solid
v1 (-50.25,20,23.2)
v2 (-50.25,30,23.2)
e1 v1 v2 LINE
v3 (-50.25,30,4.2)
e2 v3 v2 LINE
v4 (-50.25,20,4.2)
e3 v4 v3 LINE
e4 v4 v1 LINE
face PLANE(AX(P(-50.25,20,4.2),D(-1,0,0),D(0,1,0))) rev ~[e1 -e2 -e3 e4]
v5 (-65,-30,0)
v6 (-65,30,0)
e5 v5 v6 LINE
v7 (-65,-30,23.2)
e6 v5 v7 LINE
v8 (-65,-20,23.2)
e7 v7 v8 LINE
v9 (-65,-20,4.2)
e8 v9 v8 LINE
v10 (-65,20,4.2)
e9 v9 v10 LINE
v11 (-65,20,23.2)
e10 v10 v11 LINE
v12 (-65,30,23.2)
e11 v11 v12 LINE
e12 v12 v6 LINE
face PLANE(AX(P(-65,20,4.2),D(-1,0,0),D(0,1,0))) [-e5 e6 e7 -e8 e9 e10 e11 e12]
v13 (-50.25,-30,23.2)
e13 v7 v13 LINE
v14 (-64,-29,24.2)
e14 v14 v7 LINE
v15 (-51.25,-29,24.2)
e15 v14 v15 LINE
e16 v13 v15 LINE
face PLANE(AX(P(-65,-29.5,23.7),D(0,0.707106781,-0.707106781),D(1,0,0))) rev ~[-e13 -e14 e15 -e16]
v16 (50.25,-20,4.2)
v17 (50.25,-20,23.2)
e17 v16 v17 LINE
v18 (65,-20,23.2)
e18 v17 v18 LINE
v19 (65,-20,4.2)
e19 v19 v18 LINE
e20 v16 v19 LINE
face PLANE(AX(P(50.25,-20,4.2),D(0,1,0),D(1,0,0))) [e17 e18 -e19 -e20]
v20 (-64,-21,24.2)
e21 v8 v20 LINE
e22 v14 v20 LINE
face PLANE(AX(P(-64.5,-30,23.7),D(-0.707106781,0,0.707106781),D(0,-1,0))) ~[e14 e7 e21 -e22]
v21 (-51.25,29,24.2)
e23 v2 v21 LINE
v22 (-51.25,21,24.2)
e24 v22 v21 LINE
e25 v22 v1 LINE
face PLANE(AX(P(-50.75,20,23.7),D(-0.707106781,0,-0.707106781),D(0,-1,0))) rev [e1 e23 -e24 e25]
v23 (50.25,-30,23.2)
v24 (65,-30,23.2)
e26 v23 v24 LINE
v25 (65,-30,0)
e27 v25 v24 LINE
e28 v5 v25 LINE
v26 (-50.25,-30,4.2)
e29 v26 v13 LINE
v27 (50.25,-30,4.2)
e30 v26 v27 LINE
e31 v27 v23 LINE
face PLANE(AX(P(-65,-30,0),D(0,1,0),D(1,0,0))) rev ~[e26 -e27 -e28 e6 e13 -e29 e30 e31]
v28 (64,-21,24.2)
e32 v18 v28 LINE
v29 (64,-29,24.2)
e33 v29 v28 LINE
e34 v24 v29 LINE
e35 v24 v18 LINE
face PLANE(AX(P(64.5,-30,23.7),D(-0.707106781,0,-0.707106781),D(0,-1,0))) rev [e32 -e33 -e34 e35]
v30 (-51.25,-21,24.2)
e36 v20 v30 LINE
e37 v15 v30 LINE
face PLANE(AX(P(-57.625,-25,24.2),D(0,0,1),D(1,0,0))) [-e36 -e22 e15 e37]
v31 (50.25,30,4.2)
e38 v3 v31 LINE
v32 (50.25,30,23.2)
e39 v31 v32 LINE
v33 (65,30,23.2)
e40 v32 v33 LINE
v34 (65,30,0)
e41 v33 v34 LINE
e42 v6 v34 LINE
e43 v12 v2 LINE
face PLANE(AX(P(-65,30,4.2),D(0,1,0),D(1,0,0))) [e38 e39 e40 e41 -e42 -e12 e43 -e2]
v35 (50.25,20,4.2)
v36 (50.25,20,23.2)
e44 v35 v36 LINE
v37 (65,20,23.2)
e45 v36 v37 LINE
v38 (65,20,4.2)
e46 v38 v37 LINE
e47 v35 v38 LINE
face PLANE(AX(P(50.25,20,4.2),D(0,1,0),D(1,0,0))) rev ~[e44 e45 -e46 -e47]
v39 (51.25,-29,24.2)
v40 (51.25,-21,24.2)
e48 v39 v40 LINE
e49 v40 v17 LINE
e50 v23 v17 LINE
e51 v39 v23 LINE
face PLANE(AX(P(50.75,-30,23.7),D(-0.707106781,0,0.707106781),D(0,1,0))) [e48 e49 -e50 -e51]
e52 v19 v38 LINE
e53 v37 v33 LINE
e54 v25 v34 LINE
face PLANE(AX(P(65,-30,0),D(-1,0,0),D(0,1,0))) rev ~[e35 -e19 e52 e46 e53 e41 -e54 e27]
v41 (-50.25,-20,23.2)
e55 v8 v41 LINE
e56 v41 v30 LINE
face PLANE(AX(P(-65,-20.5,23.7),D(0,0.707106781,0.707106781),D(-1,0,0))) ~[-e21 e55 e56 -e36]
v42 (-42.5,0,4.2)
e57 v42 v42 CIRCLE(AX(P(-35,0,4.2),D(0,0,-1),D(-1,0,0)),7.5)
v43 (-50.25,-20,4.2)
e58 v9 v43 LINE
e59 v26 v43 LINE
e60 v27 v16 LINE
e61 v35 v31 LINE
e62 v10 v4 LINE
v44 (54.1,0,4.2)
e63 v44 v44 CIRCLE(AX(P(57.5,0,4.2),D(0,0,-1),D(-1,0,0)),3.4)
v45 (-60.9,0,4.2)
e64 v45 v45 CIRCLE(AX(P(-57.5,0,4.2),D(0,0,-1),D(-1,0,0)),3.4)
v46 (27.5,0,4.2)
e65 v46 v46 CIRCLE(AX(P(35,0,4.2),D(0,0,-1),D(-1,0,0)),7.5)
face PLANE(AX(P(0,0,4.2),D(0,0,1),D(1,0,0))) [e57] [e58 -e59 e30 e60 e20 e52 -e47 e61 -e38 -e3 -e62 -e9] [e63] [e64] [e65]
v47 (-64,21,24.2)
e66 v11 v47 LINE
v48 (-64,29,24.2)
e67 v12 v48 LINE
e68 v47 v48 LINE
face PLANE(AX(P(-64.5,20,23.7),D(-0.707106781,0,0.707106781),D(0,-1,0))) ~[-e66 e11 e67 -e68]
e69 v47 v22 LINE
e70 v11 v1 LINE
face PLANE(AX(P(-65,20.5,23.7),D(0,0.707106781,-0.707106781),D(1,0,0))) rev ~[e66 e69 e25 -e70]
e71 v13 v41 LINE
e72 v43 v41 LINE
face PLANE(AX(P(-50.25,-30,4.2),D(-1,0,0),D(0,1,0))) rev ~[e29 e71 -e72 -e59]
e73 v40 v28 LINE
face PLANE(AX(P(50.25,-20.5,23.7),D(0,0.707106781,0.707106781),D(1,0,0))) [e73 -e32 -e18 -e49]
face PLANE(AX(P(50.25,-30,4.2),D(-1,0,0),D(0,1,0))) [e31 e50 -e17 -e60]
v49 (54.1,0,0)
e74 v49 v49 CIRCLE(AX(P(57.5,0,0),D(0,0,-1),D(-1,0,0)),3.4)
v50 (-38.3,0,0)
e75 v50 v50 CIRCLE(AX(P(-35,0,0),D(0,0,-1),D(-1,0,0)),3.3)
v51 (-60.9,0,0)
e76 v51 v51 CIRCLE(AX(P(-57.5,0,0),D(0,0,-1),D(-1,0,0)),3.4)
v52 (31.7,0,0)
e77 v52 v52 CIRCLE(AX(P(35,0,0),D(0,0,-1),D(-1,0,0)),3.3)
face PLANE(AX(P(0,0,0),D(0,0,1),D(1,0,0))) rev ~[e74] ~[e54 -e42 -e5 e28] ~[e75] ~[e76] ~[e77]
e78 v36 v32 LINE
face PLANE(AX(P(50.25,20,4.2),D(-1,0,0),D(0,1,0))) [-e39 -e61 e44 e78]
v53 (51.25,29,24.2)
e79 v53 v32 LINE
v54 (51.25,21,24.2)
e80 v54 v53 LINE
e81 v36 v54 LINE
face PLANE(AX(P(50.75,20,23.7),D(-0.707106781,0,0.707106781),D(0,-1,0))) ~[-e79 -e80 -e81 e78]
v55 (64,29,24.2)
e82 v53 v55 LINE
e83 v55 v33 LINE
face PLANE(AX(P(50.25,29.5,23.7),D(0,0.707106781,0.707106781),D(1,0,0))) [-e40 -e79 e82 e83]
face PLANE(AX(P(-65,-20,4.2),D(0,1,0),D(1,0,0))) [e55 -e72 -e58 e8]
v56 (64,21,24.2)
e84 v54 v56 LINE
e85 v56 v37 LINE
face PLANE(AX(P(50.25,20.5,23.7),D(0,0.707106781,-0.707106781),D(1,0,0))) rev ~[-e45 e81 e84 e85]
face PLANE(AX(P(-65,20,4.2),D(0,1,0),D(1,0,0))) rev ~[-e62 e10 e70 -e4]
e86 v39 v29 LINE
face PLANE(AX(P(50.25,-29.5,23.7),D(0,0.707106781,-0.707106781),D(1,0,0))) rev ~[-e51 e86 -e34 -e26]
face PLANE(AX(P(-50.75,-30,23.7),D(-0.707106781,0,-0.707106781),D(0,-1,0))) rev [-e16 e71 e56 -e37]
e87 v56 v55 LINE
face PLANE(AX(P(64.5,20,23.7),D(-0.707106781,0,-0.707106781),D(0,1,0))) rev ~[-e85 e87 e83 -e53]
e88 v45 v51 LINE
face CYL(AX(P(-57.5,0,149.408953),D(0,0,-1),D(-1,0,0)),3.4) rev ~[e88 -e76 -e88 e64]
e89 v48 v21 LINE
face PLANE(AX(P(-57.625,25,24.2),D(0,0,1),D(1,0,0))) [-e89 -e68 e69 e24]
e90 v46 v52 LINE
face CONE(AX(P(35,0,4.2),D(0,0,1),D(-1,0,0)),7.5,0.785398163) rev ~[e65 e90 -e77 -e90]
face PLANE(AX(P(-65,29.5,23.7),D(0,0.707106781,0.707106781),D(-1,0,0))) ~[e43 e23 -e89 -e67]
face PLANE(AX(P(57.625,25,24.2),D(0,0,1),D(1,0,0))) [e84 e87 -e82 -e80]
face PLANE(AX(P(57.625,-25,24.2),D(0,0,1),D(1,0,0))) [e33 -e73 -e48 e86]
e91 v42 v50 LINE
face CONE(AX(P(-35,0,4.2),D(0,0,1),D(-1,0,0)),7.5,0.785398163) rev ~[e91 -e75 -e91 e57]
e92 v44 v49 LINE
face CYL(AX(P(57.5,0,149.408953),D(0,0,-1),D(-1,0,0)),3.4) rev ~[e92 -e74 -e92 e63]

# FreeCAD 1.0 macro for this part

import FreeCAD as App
import Part
import Sketcher
from FreeCAD import Vector
Q = App.Units.Quantity


def edges_at(feature, points):
    """Names of the edges that pass closest to the given points."""
    edges = feature.Shape.Edges
    near = lambda p: min(range(len(edges)), key=lambda i: edges[i].distToShape(Part.Vertex(*p))[0])
    return sorted({f"Edge{near(p) + 1}" for p in points})


def add_polygon(sketch, points):
    """Adds a closed chain of lines whose ends are joined by coincident constraints."""
    first, n = sketch.GeometryCount, len(points)
    for a, b in zip(points, points[1:] + points[:1]):
        sketch.addGeometry(Part.LineSegment(App.Vector(*a, 0), App.Vector(*b, 0)), False)
    for i in range(n):
        sketch.addConstraint(Sketcher.Constraint("Coincident", first + i, 2, first + (i + 1) % n, 1))

doc = App.newDocument("Part")
body = doc.addObject("PartDesign::Body", "Body")

# Sketch on XY plane
sketch1 = doc.addObject("Sketcher::SketchObject", "Sketch")
body.addObject(sketch1)
sketch1.AttachmentSupport = (doc.XY_Plane, [""])
sketch1.MapMode = "FlatFace"
add_polygon(sketch1, [(-65, 30), (-65, -30), (65, -30), (65, 30)])  # lines 0-3
sketch1.addConstraint(Sketcher.Constraint("Vertical", 0))
sketch1.addConstraint(Sketcher.Constraint("Horizontal", 1))
sketch1.addConstraint(Sketcher.Constraint("Vertical", 2))
sketch1.addConstraint(Sketcher.Constraint("Horizontal", 3))
sketch1.addConstraint(Sketcher.Constraint("Symmetric", 0, 2, 2, 2, -1, 1))
sketch1.addConstraint(Sketcher.Constraint("DistanceX", 1, 1, 1, 2, Q("130 mm")))
sketch1.addConstraint(Sketcher.Constraint("DistanceY", 0, 2, 0, 1, Q("60 mm")))
pad1 = doc.addObject("PartDesign::Pad", "Pad")
body.addObject(pad1)
pad1.Profile = sketch1
pad1.Length = 4.2

# Sketch on XY plane
sketch2 = doc.addObject("Sketcher::SketchObject", "Sketch001")
body.addObject(sketch2)
sketch2.AttachmentSupport = (doc.XY_Plane, [""])
sketch2.MapMode = "FlatFace"
sketch2.AttachmentOffset = App.Placement(Vector(0, 0, 4.2), App.Rotation())
add_polygon(sketch2, [(-65, 30), (-65, 20), (-50, 20), (-50, 30)])  # lines 0-3
add_polygon(sketch2, [(-65, -20), (-65, -30), (-50, -30), (-50, -20)])  # lines 4-7
add_polygon(sketch2, [(50, -20), (50, -30), (65, -30), (65, -20)])  # lines 8-11
add_polygon(sketch2, [(50, 30), (50, 20), (65, 20), (65, 30)])  # lines 12-15
sketch2.addConstraint(Sketcher.Constraint("Vertical", 0))
sketch2.addConstraint(Sketcher.Constraint("Horizontal", 1))
sketch2.addConstraint(Sketcher.Constraint("Vertical", 2))
sketch2.addConstraint(Sketcher.Constraint("Horizontal", 3))
sketch2.addConstraint(Sketcher.Constraint("Vertical", 4))
sketch2.addConstraint(Sketcher.Constraint("Horizontal", 5))
sketch2.addConstraint(Sketcher.Constraint("Vertical", 6))
sketch2.addConstraint(Sketcher.Constraint("Horizontal", 7))
sketch2.addConstraint(Sketcher.Constraint("Vertical", 8))
sketch2.addConstraint(Sketcher.Constraint("Horizontal", 9))
sketch2.addConstraint(Sketcher.Constraint("Vertical", 10))
sketch2.addConstraint(Sketcher.Constraint("Horizontal", 11))
sketch2.addConstraint(Sketcher.Constraint("Vertical", 12))
sketch2.addConstraint(Sketcher.Constraint("Horizontal", 13))
sketch2.addConstraint(Sketcher.Constraint("Vertical", 14))
sketch2.addConstraint(Sketcher.Constraint("Horizontal", 15))
sketch2.addConstraint(Sketcher.Constraint("Symmetric", 2, 2, 8, 2, -1, 1))
sketch2.addConstraint(Sketcher.Constraint("Symmetric", 0, 2, 10, 2, -1, 1))
sketch2.addConstraint(Sketcher.Constraint("Symmetric", 6, 2, 12, 2, -1, 1))
sketch2.addConstraint(Sketcher.Constraint("Symmetric", 4, 2, 14, 2, -1, 1))
sketch2.addConstraint(Sketcher.Constraint("Symmetric", 5, 2, 8, 2, -2))
sketch2.addConstraint(Sketcher.Constraint("Symmetric", 7, 2, 10, 2, -2))
sketch2.addConstraint(Sketcher.Constraint("DistanceY", 0, 2, 0, 1, Q("10 mm")))
sketch2.addConstraint(Sketcher.Constraint("DistanceX", 0, 2, -1, 1, Q("65 mm")))
sketch2.addConstraint(Sketcher.Constraint("DistanceY", -1, 1, 0, 2, Q("20 mm")))
sketch2.addConstraint(Sketcher.Constraint("DistanceX", 1, 1, 1, 2, Q("14.75 mm")))
pad2 = doc.addObject("PartDesign::Pad", "Pad001")
body.addObject(pad2)
pad2.Profile = sketch2
pad2.Length = 20

# Sketch on XY plane
sketch3 = doc.addObject("Sketcher::SketchObject", "Sketch002")
body.addObject(sketch3)
sketch3.AttachmentSupport = (doc.XY_Plane, [""])
sketch3.MapMode = "FlatFace"
sketch3.AttachmentOffset = App.Placement(Vector(0, 0, 4.2), App.Rotation())
sketch3.addGeometry(Part.Circle(Vector(57.5, 0, 0), Vector(0, 0, 1), 3.4), False)
sketch3.addGeometry(Part.Circle(Vector(-57.5, 0, 0), Vector(0, 0, 1), 3.4), False)
sketch3.addConstraint(Sketcher.Constraint("Equal", 0, 1))
sketch3.addConstraint(Sketcher.Constraint("Symmetric", 0, 3, 1, 3, -1, 1))
sketch3.addConstraint(Sketcher.Constraint("PointOnObject", 0, 3, -1))
sketch3.addConstraint(Sketcher.Constraint("Diameter", 0, Q("6.8 mm")))
sketch3.addConstraint(Sketcher.Constraint("DistanceX", 1, 3, 0, 3, Q("115 mm")))
doc.recompute()
hole = doc.addObject("PartDesign::Hole", "Hole")
body.addObject(hole)
hole.Profile = sketch3
hole.ThreadType = "None"
hole.Diameter = 6.8
hole.DepthType = "ThroughAll"

# Sketch on XY plane
sketch4 = doc.addObject("Sketcher::SketchObject", "Sketch003")
body.addObject(sketch4)
sketch4.AttachmentSupport = (doc.XY_Plane, [""])
sketch4.MapMode = "FlatFace"
sketch4.AttachmentOffset = App.Placement(Vector(0, 0, 4.2), App.Rotation())
sketch4.addGeometry(Part.Circle(Vector(35, 0, 0), Vector(0, 0, 1), 3), False)
sketch4.addGeometry(Part.Circle(Vector(-35, 0, 0), Vector(0, 0, 1), 3), False)
sketch4.addConstraint(Sketcher.Constraint("Equal", 0, 1))
sketch4.addConstraint(Sketcher.Constraint("Symmetric", 0, 3, 1, 3, -1, 1))
sketch4.addConstraint(Sketcher.Constraint("PointOnObject", 0, 3, -1))
sketch4.addConstraint(Sketcher.Constraint("Diameter", 0, Q("6 mm")))
sketch4.addConstraint(Sketcher.Constraint("DistanceX", -1, 1, 0, 3, Q("35 mm")))
doc.recompute()
hole2 = doc.addObject("PartDesign::Hole", "Hole001")
body.addObject(hole2)
hole2.Profile = sketch4
hole2.ThreadType = "None"
hole2.Diameter = 6
hole2.DepthType = "ThroughAll"
hole2.HoleCutType = "Countersink"
hole2.HoleCutDiameter = 15
hole2.HoleCutCountersinkAngle = 90
doc.recompute()

chamfer = doc.addObject("PartDesign::Chamfer", "Chamfer")
body.addObject(chamfer)
chamfer.Base = (hole2, edges_at(hole2, [
    (-50.25, -25, 24.2),
    (-57.625, -30, 24.2),
    (-65, -25, 24.2),
    (-57.625, -20, 24.2),
    (-57.625, 30, 24.2),
    (-65, 25, 24.2),
    (-57.625, 20, 24.2),
    (-50.25, 25, 24.2),
    (65, -25, 24.2),
    (57.625, -20, 24.2),
    (50.25, -25, 24.2),
    (57.625, -30, 24.2),
    (57.625, 30, 24.2),
    (50.25, 25, 24.2),
    (57.625, 20, 24.2),
    (65, 25, 24.2),
]))
chamfer.Size = 1

doc.recompute()
